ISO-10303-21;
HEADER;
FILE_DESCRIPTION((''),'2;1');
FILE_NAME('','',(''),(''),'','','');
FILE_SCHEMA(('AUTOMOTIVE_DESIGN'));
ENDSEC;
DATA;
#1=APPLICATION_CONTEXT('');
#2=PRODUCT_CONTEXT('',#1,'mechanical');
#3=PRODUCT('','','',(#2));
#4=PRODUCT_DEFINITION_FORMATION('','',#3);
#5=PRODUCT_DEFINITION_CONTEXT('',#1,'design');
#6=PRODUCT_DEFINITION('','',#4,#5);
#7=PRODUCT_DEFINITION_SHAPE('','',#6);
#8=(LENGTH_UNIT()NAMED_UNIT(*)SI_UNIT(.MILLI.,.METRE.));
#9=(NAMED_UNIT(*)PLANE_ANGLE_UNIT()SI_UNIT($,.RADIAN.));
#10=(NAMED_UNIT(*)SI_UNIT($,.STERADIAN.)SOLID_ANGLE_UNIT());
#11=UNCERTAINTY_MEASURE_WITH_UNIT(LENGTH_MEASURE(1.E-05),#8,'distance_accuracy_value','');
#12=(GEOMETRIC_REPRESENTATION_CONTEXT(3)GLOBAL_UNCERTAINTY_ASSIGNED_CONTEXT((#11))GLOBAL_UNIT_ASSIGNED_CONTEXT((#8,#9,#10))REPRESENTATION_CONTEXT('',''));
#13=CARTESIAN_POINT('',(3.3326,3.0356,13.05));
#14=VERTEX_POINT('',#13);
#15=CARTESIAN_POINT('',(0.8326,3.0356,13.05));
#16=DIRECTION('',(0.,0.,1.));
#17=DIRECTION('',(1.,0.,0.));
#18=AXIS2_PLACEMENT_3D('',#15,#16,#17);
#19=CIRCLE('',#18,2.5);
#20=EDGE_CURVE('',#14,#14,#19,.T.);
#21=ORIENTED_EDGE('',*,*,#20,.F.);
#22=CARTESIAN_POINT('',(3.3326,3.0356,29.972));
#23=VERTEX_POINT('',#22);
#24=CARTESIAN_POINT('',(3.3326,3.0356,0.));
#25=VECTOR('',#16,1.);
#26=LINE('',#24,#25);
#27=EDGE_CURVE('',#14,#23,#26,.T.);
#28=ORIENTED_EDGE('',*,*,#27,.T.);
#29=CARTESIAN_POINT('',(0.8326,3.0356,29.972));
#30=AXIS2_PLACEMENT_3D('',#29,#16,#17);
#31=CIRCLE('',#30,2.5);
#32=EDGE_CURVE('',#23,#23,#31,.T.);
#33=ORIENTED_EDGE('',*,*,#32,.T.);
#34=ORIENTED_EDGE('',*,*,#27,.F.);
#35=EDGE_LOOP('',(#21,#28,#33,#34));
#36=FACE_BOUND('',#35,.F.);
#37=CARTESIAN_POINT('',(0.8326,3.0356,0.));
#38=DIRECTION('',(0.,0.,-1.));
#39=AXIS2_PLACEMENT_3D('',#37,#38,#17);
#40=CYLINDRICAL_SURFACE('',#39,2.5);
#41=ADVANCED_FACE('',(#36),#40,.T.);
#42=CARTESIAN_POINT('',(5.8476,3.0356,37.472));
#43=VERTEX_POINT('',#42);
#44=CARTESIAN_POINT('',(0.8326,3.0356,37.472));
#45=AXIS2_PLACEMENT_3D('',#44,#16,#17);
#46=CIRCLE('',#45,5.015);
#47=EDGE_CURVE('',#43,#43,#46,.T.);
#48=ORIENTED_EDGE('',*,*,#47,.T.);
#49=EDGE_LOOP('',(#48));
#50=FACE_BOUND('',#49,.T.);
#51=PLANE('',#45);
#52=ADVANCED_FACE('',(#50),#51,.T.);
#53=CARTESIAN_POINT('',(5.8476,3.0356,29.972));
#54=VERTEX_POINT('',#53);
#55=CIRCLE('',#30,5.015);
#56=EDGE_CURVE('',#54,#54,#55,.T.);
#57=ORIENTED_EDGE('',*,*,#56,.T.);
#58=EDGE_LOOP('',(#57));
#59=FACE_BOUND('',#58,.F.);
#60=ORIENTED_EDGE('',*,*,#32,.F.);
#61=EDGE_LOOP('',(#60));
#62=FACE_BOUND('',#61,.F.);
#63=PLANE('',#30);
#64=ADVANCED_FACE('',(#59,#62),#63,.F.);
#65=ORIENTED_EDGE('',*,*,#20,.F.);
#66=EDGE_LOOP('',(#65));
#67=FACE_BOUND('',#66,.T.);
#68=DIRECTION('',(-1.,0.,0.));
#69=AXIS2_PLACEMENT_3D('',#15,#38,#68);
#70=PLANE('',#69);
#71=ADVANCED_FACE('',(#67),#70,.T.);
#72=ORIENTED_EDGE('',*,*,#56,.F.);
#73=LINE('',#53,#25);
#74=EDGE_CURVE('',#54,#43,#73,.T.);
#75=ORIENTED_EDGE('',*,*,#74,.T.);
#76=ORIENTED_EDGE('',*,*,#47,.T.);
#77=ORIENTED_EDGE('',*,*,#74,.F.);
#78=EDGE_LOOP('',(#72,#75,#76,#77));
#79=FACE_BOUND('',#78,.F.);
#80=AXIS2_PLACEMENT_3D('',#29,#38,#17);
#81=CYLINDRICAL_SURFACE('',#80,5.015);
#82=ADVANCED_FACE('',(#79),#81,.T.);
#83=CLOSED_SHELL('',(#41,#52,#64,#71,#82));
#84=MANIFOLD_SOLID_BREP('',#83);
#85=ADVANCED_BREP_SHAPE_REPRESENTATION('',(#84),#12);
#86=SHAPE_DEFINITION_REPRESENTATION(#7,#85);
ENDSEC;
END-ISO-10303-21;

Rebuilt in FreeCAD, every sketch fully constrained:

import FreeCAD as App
import Part
import Sketcher
from FreeCAD import Vector
Q = App.Units.Quantity

doc = App.newDocument("Part")
params = doc.addObject("Spreadsheet::Sheet", "Params")
for row, (alias, value) in enumerate([
    ("sketch1_diameter", "5 mm"),
    ("pad1_length", "29.972 mm"),
    ("sketch2_diameter", "10.03 mm"),
    ("pad2_length", "7.5 mm"),
    ("sketch3_diameter", "5 mm"),
    ("pad3_length", "6 mm"),
    ("sketch4_diameter", "5 mm"),
    ("pocket1_length", "19.05 mm"),
], start=1):
    params.set(f"A{row}", alias)
    params.set(f"B{row}", "=" + value)
    params.setAlias(f"B{row}", alias)

body = doc.addObject("PartDesign::Body", "Body")

sketch1 = body.newObject("Sketcher::SketchObject", "Sketch")
sketch1.AttachmentSupport = (doc.getObject("XY_Plane"), [""])
sketch1.MapMode = "FlatFace"
sketch1.addGeometry(Part.Circle(Vector(0.8, 3, 0), Vector(0, 0, 1), 2.5), False)
sketch1.addConstraint(Sketcher.Constraint("Diameter", 0, Q("5 mm")))
sketch1.addConstraint(Sketcher.Constraint("DistanceX", -1, 1, 0, 3, Q("0.8326 mm")))
sketch1.addConstraint(Sketcher.Constraint("DistanceY", -1, 1, 0, 3, Q("3.0356 mm")))
sketch1.setExpression("Constraints[0]", "Params.sketch1_diameter")
pad1 = body.newObject("PartDesign::Pad", "Pad")
pad1.Profile = sketch1
pad1.setExpression("Length", "Params.pad1_length")

sketch2 = body.newObject("Sketcher::SketchObject", "Sketch001")
sketch2.AttachmentSupport = (doc.getObject("XY_Plane"), [""])
sketch2.MapMode = "FlatFace"
sketch2.AttachmentOffset = App.Placement(Vector(0, 0, 29.972), App.Rotation())
sketch2.addGeometry(Part.Circle(Vector(1, 3, 0), Vector(0, 0, 1), 5), False)
sketch2.addConstraint(Sketcher.Constraint("Diameter", 0, Q("10.03 mm")))
sketch2.addConstraint(Sketcher.Constraint("DistanceX", -1, 1, 0, 3, Q("0.8326 mm")))
sketch2.addConstraint(Sketcher.Constraint("DistanceY", -1, 1, 0, 3, Q("3.0356 mm")))
sketch2.setExpression("Constraints[0]", "Params.sketch2_diameter")
pad2 = body.newObject("PartDesign::Pad", "Pad001")
pad2.Profile = sketch2
pad2.setExpression("Length", "Params.pad2_length")

sketch3 = body.newObject("Sketcher::SketchObject", "Sketch002")
sketch3.AttachmentSupport = (doc.getObject("XY_Plane"), [""])
sketch3.MapMode = "FlatFace"
sketch3.addGeometry(Part.Circle(Vector(0.8, 3, 0), Vector(0, 0, 1), 2.5), False)
sketch3.addConstraint(Sketcher.Constraint("Diameter", 0, Q("5 mm")))
sketch3.addConstraint(Sketcher.Constraint("DistanceX", -1, 1, 0, 3, Q("0.8326 mm")))
sketch3.addConstraint(Sketcher.Constraint("DistanceY", -1, 1, 0, 3, Q("3.0356 mm")))
sketch3.setExpression("Constraints[0]", "Params.sketch3_diameter")
pad3 = body.newObject("PartDesign::Pad", "Pad002")
pad3.Profile = sketch3
pad3.setExpression("Length", "Params.pad3_length")
pad3.Reversed = True

sketch4 = body.newObject("Sketcher::SketchObject", "Sketch003")
sketch4.AttachmentSupport = (doc.getObject("XY_Plane"), [""])
sketch4.MapMode = "FlatFace"
sketch4.AttachmentOffset = App.Placement(Vector(0, 0, -6), App.Rotation())
sketch4.addGeometry(Part.Circle(Vector(0.8, 3, 0), Vector(0, 0, 1), 2.5), False)
sketch4.addConstraint(Sketcher.Constraint("Diameter", 0, Q("5 mm")))
sketch4.addConstraint(Sketcher.Constraint("DistanceX", -1, 1, 0, 3, Q("0.8326 mm")))
sketch4.addConstraint(Sketcher.Constraint("DistanceY", -1, 1, 0, 3, Q("3.0356 mm")))
sketch4.setExpression("Constraints[0]", "Params.sketch4_diameter")
pocket1 = body.newObject("PartDesign::Pocket", "Pocket")
pocket1.Profile = sketch4
pocket1.setExpression("Length", "Params.pocket1_length")
pocket1.Reversed = True

doc.recompute()
